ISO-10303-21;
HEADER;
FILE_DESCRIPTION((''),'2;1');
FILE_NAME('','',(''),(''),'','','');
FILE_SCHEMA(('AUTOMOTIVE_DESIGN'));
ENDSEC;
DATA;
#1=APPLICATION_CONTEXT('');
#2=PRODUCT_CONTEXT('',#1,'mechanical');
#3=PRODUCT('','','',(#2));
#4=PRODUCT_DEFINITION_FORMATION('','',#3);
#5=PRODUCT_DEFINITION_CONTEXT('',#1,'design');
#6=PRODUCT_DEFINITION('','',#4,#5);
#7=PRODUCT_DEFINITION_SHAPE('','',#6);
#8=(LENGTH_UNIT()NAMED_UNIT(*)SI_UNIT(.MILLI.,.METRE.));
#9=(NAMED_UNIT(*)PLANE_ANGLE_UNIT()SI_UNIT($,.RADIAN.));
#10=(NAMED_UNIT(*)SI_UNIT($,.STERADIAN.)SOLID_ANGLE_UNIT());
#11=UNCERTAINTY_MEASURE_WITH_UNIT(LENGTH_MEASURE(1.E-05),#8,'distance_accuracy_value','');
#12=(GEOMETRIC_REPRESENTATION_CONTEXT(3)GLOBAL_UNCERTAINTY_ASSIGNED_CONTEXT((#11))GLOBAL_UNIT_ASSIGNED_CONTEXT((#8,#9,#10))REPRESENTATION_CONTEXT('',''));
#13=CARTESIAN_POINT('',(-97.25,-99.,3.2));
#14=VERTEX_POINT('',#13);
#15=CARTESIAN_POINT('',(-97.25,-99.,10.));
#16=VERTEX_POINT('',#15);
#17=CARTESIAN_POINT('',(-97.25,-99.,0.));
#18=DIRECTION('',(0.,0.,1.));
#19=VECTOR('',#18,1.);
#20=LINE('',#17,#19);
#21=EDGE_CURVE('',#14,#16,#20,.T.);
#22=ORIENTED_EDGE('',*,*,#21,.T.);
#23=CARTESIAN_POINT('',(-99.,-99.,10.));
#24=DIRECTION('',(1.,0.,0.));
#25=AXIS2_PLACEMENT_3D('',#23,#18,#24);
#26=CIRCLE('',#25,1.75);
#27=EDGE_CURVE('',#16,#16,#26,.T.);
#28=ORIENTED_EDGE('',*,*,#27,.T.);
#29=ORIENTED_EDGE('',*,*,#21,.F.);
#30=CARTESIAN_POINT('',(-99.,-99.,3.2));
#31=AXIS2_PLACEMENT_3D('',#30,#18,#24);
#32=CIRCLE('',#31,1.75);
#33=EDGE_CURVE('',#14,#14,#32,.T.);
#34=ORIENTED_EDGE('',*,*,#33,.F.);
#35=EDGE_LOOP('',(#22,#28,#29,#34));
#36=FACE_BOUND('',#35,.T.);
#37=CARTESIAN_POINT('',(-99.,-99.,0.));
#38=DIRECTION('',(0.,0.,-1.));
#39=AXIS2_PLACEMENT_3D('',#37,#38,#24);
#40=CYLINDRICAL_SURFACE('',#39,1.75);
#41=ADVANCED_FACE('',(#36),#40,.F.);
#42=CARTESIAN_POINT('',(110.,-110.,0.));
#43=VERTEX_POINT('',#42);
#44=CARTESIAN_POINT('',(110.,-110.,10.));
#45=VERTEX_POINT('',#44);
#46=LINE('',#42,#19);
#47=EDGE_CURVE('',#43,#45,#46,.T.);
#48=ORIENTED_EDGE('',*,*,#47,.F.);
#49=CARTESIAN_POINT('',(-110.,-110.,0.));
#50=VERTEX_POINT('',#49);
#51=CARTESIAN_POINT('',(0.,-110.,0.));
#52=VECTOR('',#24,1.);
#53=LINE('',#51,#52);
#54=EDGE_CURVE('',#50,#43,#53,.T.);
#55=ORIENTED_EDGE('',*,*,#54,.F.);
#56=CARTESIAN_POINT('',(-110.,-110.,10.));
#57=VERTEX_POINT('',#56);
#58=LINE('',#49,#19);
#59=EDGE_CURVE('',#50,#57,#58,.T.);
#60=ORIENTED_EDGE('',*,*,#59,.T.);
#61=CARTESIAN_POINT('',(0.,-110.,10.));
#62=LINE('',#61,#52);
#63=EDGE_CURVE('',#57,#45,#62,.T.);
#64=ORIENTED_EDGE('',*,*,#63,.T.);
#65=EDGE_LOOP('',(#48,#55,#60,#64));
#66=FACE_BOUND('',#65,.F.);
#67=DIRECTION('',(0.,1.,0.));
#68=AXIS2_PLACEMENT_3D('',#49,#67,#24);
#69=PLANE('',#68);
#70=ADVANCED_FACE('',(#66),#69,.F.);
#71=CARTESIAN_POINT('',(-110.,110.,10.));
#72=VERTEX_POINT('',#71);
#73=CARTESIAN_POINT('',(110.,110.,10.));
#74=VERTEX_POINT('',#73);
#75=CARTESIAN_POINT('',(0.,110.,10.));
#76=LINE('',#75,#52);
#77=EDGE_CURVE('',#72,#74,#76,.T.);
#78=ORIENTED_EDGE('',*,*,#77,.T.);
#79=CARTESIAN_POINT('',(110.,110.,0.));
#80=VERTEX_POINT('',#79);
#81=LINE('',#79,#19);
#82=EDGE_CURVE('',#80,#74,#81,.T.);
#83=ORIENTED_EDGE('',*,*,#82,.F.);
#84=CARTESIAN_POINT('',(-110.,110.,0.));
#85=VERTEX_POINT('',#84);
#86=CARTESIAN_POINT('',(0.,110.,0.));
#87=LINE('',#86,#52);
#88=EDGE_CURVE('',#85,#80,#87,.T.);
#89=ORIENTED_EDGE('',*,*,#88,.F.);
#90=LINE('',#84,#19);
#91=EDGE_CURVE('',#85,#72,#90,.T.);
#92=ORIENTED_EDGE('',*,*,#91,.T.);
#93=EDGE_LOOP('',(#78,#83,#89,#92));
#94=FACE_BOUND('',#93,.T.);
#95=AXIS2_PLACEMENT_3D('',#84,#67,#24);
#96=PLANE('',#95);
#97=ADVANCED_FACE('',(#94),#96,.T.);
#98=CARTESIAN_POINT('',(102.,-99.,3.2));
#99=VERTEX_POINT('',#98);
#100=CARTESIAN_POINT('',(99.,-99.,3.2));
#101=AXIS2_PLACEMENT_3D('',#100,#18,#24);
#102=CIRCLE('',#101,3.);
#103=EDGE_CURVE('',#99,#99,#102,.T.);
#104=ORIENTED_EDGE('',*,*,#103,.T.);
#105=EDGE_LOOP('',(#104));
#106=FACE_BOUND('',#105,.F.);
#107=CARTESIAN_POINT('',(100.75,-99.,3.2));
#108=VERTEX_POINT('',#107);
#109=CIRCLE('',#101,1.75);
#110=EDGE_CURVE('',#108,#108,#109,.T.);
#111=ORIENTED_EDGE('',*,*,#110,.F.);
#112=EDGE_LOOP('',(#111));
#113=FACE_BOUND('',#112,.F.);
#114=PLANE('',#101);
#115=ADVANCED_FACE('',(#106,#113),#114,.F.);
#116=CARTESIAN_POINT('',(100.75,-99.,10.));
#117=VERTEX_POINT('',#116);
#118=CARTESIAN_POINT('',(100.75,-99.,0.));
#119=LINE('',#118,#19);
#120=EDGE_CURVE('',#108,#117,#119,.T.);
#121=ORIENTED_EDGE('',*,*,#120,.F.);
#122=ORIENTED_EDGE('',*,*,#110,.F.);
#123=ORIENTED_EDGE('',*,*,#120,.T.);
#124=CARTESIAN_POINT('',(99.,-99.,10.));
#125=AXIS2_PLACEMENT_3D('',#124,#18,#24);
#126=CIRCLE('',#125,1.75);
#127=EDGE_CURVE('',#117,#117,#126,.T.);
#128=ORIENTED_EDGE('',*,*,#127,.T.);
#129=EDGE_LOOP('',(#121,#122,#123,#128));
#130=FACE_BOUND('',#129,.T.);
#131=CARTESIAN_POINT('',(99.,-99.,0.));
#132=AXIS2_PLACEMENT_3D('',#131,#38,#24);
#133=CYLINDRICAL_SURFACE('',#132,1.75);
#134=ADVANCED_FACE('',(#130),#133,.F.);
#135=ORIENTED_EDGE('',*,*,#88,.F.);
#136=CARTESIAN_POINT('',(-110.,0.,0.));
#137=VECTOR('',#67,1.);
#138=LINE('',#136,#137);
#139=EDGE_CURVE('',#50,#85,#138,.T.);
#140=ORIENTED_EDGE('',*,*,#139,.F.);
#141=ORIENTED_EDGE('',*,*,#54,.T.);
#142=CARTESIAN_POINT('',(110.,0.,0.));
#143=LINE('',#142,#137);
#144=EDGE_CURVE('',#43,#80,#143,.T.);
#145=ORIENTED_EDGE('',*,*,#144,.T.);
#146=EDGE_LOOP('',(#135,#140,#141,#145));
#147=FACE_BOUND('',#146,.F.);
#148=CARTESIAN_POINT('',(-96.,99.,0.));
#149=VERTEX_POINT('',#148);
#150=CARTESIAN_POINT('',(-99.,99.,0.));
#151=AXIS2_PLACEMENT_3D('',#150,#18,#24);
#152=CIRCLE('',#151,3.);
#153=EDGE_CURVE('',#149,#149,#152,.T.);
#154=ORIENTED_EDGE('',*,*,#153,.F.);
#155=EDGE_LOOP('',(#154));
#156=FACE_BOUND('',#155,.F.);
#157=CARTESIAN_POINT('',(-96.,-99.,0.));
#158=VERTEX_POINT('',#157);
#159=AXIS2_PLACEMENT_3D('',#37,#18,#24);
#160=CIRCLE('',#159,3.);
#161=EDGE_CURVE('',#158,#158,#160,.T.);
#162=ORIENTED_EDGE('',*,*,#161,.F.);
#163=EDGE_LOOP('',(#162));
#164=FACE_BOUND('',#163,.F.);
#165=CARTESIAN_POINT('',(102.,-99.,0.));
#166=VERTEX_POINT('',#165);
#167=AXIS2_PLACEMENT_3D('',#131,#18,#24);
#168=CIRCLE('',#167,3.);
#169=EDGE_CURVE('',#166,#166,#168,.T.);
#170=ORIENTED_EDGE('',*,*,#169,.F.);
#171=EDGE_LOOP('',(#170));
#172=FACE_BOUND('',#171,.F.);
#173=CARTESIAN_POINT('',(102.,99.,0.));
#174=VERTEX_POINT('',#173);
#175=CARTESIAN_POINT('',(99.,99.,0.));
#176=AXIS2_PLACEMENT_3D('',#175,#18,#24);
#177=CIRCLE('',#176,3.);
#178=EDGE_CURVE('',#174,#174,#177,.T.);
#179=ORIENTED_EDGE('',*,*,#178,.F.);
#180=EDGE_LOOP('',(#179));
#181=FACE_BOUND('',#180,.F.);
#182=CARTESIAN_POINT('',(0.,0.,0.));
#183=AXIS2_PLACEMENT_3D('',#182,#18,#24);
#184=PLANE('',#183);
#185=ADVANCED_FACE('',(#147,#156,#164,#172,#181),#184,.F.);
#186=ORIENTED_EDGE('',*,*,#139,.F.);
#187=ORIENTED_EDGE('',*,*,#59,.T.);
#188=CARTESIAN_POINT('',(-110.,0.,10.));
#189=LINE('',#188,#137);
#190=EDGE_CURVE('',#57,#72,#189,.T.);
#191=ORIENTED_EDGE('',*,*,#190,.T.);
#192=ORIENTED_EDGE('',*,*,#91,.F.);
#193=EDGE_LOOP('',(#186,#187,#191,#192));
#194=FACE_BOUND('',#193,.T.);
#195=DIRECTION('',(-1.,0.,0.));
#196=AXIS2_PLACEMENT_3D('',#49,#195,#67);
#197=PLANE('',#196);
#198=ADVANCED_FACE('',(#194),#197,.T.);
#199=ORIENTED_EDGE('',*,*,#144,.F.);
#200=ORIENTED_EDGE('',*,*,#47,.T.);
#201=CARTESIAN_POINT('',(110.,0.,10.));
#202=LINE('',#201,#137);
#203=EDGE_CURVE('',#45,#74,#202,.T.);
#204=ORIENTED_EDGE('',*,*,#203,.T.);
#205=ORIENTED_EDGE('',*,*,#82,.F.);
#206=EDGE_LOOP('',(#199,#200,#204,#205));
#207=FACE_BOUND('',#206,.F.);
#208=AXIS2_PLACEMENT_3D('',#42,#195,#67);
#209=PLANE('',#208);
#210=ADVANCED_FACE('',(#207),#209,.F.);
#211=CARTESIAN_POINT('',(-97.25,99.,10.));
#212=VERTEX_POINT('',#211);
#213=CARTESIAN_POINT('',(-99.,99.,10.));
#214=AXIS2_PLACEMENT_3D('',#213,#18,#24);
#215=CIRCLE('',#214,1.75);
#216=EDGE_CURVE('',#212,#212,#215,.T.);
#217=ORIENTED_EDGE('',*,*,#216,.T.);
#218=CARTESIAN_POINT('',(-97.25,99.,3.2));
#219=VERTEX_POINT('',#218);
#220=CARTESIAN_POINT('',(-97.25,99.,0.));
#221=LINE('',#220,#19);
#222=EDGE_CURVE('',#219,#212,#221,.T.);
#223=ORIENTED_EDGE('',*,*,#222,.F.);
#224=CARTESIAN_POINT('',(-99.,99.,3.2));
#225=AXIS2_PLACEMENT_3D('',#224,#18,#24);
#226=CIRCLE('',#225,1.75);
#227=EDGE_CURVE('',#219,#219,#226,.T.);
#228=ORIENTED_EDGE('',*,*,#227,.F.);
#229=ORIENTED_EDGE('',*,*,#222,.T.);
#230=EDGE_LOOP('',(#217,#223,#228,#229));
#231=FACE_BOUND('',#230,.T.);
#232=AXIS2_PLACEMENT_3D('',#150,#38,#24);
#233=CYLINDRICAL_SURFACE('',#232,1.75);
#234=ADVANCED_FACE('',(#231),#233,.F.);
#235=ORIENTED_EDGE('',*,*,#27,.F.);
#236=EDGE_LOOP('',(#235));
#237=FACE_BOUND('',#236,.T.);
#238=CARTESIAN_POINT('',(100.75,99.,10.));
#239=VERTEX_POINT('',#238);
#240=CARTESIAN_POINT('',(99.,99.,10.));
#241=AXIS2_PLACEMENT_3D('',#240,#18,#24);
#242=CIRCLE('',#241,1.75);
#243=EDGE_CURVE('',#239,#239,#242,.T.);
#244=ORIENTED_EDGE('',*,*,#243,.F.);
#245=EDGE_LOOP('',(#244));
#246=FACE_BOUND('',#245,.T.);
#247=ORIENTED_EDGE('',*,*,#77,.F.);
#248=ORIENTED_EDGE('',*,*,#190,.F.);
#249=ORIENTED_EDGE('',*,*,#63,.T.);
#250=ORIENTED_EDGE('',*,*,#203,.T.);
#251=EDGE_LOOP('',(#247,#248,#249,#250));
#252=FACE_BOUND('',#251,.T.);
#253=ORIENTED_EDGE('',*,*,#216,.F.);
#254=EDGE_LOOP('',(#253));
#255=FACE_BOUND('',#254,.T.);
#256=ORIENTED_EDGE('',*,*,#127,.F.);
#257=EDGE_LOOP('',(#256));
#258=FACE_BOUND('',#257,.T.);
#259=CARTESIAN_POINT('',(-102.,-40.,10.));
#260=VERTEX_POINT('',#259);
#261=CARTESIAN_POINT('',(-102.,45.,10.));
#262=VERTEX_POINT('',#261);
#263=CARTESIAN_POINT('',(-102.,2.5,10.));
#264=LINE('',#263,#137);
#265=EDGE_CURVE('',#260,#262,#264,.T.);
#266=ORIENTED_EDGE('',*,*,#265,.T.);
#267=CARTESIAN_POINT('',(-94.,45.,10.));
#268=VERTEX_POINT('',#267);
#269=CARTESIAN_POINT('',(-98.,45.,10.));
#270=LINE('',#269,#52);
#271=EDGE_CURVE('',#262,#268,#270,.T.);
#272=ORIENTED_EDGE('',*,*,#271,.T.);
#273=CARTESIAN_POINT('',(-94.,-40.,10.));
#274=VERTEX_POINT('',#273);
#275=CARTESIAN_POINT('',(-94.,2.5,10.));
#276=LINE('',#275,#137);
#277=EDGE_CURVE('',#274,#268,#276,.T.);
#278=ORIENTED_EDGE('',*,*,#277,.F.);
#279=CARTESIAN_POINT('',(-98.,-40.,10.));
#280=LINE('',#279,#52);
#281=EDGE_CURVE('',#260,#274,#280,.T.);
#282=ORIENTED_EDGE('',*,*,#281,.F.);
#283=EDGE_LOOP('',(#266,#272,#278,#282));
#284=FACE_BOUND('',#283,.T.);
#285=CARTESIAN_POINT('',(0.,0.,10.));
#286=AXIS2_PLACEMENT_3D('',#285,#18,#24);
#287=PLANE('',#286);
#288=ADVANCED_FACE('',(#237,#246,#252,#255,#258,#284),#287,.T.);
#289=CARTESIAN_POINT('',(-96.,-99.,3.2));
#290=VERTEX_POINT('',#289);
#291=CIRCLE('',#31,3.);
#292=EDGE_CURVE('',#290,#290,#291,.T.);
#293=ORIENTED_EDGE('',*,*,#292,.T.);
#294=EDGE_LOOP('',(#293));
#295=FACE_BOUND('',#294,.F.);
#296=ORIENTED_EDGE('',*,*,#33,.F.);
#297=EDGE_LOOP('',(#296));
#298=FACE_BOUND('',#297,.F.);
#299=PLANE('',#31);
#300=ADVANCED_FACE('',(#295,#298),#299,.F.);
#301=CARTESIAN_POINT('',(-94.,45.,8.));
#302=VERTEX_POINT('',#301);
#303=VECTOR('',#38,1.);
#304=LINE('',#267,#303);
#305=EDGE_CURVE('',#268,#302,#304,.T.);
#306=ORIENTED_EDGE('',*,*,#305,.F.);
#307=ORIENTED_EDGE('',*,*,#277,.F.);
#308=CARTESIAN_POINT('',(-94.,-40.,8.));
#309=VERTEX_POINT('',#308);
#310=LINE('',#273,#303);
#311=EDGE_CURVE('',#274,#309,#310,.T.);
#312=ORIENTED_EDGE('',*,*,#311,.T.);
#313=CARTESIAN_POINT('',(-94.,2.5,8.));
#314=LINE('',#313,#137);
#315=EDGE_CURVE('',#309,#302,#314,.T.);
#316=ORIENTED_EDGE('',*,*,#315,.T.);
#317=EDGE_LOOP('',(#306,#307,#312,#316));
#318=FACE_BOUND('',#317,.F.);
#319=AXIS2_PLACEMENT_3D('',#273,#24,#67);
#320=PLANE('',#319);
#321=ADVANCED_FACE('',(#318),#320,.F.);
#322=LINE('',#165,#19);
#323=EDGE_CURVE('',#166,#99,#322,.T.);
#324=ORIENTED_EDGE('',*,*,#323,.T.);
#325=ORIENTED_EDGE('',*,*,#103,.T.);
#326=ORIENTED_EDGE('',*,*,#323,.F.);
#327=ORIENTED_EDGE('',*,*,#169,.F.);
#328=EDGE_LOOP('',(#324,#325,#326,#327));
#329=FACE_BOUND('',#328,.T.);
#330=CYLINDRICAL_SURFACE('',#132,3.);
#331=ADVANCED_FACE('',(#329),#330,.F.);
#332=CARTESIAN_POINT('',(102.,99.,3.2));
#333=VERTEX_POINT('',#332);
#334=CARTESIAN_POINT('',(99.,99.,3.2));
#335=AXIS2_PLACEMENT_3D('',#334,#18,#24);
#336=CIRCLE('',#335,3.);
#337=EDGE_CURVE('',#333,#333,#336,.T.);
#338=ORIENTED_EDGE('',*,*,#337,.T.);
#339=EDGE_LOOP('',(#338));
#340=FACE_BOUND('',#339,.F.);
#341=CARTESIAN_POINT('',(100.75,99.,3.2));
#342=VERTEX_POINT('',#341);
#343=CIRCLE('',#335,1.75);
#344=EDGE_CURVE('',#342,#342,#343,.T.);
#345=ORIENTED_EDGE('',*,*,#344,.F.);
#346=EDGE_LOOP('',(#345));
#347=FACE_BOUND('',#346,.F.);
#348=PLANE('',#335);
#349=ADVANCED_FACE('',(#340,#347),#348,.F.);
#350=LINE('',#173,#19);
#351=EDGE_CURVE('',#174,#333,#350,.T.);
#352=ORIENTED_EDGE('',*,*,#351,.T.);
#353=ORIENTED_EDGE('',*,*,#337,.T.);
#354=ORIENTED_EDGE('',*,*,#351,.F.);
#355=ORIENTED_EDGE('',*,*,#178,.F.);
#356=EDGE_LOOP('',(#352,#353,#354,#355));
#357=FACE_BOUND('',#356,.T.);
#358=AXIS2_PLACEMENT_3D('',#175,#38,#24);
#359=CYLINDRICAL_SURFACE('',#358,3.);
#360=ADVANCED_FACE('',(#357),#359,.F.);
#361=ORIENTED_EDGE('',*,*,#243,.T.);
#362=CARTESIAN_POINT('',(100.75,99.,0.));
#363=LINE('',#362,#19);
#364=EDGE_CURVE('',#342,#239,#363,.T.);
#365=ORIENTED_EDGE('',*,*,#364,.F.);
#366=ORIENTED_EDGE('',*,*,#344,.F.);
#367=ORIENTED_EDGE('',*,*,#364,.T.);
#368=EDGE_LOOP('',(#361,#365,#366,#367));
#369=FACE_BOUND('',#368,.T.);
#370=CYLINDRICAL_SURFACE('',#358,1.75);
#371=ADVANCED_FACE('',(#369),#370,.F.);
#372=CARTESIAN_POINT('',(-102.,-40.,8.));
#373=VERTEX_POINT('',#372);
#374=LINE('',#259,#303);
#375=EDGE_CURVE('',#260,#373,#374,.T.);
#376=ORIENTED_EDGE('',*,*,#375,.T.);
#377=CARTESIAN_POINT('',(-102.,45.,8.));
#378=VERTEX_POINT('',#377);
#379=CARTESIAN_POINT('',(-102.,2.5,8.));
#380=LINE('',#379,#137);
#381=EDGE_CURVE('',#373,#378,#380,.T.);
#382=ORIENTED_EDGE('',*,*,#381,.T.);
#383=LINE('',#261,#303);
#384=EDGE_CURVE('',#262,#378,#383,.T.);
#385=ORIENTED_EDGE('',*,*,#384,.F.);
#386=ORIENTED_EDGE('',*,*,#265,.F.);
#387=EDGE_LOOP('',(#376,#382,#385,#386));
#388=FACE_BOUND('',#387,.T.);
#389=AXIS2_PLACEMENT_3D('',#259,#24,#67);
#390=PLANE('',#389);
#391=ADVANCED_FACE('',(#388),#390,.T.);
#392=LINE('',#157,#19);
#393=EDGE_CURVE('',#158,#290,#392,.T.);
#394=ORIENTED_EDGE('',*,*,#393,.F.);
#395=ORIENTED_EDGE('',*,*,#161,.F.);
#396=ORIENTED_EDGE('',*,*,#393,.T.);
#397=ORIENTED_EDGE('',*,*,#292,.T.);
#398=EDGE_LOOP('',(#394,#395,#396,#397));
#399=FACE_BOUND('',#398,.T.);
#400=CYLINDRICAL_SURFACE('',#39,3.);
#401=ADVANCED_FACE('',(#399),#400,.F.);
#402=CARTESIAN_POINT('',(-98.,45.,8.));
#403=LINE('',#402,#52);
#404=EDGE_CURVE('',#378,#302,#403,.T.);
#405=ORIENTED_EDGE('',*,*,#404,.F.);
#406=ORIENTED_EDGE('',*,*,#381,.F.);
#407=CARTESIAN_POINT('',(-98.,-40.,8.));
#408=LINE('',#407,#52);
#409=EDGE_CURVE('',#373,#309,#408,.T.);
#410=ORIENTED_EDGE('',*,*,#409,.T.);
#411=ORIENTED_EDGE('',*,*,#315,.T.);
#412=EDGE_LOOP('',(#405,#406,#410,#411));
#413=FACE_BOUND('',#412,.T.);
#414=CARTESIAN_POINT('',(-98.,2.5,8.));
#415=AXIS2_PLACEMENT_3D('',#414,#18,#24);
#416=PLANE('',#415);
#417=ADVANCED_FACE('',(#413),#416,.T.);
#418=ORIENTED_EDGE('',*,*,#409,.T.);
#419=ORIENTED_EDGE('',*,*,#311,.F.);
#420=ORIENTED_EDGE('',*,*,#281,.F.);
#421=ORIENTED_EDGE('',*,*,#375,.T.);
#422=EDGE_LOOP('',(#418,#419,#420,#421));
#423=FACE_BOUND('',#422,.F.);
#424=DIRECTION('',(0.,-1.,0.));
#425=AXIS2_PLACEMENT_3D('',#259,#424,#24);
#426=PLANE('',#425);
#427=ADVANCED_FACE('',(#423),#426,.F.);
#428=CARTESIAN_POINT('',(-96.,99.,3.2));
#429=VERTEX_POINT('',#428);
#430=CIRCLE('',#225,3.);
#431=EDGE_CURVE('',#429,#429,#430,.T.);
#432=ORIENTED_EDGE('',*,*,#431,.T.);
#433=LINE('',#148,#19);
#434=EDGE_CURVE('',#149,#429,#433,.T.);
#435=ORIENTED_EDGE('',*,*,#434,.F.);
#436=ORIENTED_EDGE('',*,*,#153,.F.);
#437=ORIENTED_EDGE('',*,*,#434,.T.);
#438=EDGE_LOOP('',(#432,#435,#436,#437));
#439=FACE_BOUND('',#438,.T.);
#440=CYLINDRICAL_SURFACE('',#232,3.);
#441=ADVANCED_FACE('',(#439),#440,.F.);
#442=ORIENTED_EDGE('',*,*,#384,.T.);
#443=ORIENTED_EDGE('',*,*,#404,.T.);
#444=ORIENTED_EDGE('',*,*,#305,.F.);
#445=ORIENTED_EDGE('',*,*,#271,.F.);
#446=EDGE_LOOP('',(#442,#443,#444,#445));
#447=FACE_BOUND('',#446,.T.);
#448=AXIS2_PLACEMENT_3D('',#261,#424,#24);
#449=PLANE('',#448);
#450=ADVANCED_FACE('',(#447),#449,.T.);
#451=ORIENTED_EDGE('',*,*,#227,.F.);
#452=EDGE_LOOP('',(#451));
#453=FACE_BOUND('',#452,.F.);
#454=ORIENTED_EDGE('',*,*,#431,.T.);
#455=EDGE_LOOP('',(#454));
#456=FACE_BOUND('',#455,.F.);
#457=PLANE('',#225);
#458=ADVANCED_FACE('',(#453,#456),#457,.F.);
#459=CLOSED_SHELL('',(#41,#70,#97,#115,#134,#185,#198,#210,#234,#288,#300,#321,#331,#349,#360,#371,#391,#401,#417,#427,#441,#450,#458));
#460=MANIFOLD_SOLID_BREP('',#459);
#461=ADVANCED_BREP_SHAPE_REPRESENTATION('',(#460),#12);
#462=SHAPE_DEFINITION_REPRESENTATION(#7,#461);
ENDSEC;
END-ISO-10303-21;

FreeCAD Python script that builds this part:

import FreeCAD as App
import Part
import Sketcher

V = App.Vector

doc = App.newDocument("Part")
body = doc.addObject("PartDesign::Body", "Body")

# Sketch on XY plane
sketch1 = body.newObject("Sketcher::SketchObject", "Sketch")
sketch1.AttachmentSupport = (doc.getObject("XY_Plane"), [""])
sketch1.MapMode = "FlatFace"
sketch1.addGeometry([
    Part.LineSegment(V(-110, 110, 0), V(-110, -110, 0)),  # 0
    Part.LineSegment(V(-110, -110, 0), V(110, -110, 0)),  # 1
    Part.LineSegment(V(110, -110, 0), V(110, 110, 0)),  # 2
    Part.LineSegment(V(110, 110, 0), V(-110, 110, 0)),  # 3
    Part.Circle(V(-99, -99, 0), V(0, 0, 1), 1.8),  # 4
    Part.Circle(V(99, -99, 0), V(0, 0, 1), 1.8),  # 5
    Part.Circle(V(-99, 99, 0), V(0, 0, 1), 1.8),  # 6
    Part.Circle(V(99, 99, 0), V(0, 0, 1), 1.8),  # 7
], False)
sketch1.addConstraint([
    Sketcher.Constraint("Coincident", 0, 2, 1, 1),
    Sketcher.Constraint("Coincident", 1, 2, 2, 1),
    Sketcher.Constraint("Coincident", 2, 2, 3, 1),
    Sketcher.Constraint("Coincident", 3, 2, 0, 1),
    Sketcher.Constraint("Vertical", 0),
    Sketcher.Constraint("Horizontal", 1),
    Sketcher.Constraint("Vertical", 2),
    Sketcher.Constraint("Horizontal", 3),
    Sketcher.Constraint("Equal", 4, 5),
    Sketcher.Constraint("Equal", 5, 6),
    Sketcher.Constraint("Equal", 6, 7),
    Sketcher.Constraint("Symmetric", 5, 3, 6, 3, -1, 1),
    Sketcher.Constraint("Symmetric", 4, 3, 7, 3, -1, 1),
    Sketcher.Constraint("Symmetric", 0, 2, 2, 2, -1, 1),
    Sketcher.Constraint("Symmetric", 4, 3, 5, 3, -2),
    Sketcher.Constraint("Equal", 3, 0),
    Sketcher.Constraint("Diameter", 4, 3.5),
    Sketcher.Constraint("DistanceX", 1, 1, 1, 2, 220.0),
    Sketcher.Constraint("DistanceX", 4, 3, -1, 1, 99.0),
    Sketcher.Constraint("DistanceY", 4, 3, -1, 1, 99.0),
])
pad1 = body.newObject("PartDesign::Pad", "Pad")
pad1.Profile = sketch1
pad1.Length = 10

# Sketch on XY plane
sketch2 = body.newObject("Sketcher::SketchObject", "Sketch001")
sketch2.AttachmentSupport = (doc.getObject("XY_Plane"), [""])
sketch2.MapMode = "FlatFace"
sketch2.addGeometry([
    Part.Circle(V(-99, -99, 0), V(0, 0, 1), 3),  # 0
    Part.Circle(V(-99, -99, 0), V(0, 0, 1), 1.8),  # 1
    Part.Circle(V(99, -99, 0), V(0, 0, 1), 3),  # 2
    Part.Circle(V(99, -99, 0), V(0, 0, 1), 1.8),  # 3
    Part.Circle(V(99, 99, 0), V(0, 0, 1), 3),  # 4
    Part.Circle(V(99, 99, 0), V(0, 0, 1), 1.8),  # 5
    Part.Circle(V(-99, 99, 0), V(0, 0, 1), 3),  # 6
    Part.Circle(V(-99, 99, 0), V(0, 0, 1), 1.8),  # 7
], False)
sketch2.addConstraint([
    Sketcher.Constraint("Coincident", 1, 3, 0, 3),
    Sketcher.Constraint("Coincident", 3, 3, 2, 3),
    Sketcher.Constraint("Coincident", 5, 3, 4, 3),
    Sketcher.Constraint("Coincident", 7, 3, 6, 3),
    Sketcher.Constraint("Equal", 0, 2),
    Sketcher.Constraint("Equal", 1, 3),
    Sketcher.Constraint("Equal", 2, 4),
    Sketcher.Constraint("Equal", 3, 5),
    Sketcher.Constraint("Equal", 4, 6),
    Sketcher.Constraint("Equal", 5, 7),
    Sketcher.Constraint("Symmetric", 0, 3, 4, 3, -1, 1),
    Sketcher.Constraint("Symmetric", 2, 3, 6, 3, -1, 1),
    Sketcher.Constraint("Symmetric", 0, 3, 2, 3, -2),
    Sketcher.Constraint("Diameter", 0, 6.0),
    Sketcher.Constraint("Diameter", 1, 3.5),
    Sketcher.Constraint("DistanceX", 0, 3, -1, 1, 99.0),
    Sketcher.Constraint("DistanceY", 0, 3, -1, 1, 99.0),
])
pocket1 = body.newObject("PartDesign::Pocket", "Pocket")
pocket1.Profile = sketch2
pocket1.Length = 3.2
pocket1.Reversed = True

# Sketch on XY plane
sketch3 = body.newObject("Sketcher::SketchObject", "Sketch002")
sketch3.AttachmentSupport = (doc.getObject("XY_Plane"), [""])
sketch3.MapMode = "FlatFace"
sketch3.AttachmentOffset = App.Placement(V(0, 0, 10), App.Rotation())
sketch3.addGeometry([
    Part.LineSegment(V(-102, 45, 0), V(-102, -40, 0)),
    Part.LineSegment(V(-102, -40, 0), V(-94, -40, 0)),
    Part.LineSegment(V(-94, -40, 0), V(-94, 45, 0)),
    Part.LineSegment(V(-94, 45, 0), V(-102, 45, 0)),
], False)
sketch3.addConstraint([
    Sketcher.Constraint("Coincident", 0, 2, 1, 1),
    Sketcher.Constraint("Coincident", 1, 2, 2, 1),
    Sketcher.Constraint("Coincident", 2, 2, 3, 1),
    Sketcher.Constraint("Coincident", 3, 2, 0, 1),
    Sketcher.Constraint("Vertical", 0),
    Sketcher.Constraint("Horizontal", 1),
    Sketcher.Constraint("Vertical", 2),
    Sketcher.Constraint("Horizontal", 3),
    Sketcher.Constraint("DistanceX", 1, 1, 1, 2, 8.0),
    Sketcher.Constraint("DistanceY", 0, 2, 0, 1, 85.0),
    Sketcher.Constraint("DistanceX", 0, 2, -1, 1, 102.0),
    Sketcher.Constraint("DistanceY", 0, 2, -1, 1, 40.0),
])
pocket2 = body.newObject("PartDesign::Pocket", "Pocket001")
pocket2.Profile = sketch3
pocket2.Length = 2

doc.recompute()
